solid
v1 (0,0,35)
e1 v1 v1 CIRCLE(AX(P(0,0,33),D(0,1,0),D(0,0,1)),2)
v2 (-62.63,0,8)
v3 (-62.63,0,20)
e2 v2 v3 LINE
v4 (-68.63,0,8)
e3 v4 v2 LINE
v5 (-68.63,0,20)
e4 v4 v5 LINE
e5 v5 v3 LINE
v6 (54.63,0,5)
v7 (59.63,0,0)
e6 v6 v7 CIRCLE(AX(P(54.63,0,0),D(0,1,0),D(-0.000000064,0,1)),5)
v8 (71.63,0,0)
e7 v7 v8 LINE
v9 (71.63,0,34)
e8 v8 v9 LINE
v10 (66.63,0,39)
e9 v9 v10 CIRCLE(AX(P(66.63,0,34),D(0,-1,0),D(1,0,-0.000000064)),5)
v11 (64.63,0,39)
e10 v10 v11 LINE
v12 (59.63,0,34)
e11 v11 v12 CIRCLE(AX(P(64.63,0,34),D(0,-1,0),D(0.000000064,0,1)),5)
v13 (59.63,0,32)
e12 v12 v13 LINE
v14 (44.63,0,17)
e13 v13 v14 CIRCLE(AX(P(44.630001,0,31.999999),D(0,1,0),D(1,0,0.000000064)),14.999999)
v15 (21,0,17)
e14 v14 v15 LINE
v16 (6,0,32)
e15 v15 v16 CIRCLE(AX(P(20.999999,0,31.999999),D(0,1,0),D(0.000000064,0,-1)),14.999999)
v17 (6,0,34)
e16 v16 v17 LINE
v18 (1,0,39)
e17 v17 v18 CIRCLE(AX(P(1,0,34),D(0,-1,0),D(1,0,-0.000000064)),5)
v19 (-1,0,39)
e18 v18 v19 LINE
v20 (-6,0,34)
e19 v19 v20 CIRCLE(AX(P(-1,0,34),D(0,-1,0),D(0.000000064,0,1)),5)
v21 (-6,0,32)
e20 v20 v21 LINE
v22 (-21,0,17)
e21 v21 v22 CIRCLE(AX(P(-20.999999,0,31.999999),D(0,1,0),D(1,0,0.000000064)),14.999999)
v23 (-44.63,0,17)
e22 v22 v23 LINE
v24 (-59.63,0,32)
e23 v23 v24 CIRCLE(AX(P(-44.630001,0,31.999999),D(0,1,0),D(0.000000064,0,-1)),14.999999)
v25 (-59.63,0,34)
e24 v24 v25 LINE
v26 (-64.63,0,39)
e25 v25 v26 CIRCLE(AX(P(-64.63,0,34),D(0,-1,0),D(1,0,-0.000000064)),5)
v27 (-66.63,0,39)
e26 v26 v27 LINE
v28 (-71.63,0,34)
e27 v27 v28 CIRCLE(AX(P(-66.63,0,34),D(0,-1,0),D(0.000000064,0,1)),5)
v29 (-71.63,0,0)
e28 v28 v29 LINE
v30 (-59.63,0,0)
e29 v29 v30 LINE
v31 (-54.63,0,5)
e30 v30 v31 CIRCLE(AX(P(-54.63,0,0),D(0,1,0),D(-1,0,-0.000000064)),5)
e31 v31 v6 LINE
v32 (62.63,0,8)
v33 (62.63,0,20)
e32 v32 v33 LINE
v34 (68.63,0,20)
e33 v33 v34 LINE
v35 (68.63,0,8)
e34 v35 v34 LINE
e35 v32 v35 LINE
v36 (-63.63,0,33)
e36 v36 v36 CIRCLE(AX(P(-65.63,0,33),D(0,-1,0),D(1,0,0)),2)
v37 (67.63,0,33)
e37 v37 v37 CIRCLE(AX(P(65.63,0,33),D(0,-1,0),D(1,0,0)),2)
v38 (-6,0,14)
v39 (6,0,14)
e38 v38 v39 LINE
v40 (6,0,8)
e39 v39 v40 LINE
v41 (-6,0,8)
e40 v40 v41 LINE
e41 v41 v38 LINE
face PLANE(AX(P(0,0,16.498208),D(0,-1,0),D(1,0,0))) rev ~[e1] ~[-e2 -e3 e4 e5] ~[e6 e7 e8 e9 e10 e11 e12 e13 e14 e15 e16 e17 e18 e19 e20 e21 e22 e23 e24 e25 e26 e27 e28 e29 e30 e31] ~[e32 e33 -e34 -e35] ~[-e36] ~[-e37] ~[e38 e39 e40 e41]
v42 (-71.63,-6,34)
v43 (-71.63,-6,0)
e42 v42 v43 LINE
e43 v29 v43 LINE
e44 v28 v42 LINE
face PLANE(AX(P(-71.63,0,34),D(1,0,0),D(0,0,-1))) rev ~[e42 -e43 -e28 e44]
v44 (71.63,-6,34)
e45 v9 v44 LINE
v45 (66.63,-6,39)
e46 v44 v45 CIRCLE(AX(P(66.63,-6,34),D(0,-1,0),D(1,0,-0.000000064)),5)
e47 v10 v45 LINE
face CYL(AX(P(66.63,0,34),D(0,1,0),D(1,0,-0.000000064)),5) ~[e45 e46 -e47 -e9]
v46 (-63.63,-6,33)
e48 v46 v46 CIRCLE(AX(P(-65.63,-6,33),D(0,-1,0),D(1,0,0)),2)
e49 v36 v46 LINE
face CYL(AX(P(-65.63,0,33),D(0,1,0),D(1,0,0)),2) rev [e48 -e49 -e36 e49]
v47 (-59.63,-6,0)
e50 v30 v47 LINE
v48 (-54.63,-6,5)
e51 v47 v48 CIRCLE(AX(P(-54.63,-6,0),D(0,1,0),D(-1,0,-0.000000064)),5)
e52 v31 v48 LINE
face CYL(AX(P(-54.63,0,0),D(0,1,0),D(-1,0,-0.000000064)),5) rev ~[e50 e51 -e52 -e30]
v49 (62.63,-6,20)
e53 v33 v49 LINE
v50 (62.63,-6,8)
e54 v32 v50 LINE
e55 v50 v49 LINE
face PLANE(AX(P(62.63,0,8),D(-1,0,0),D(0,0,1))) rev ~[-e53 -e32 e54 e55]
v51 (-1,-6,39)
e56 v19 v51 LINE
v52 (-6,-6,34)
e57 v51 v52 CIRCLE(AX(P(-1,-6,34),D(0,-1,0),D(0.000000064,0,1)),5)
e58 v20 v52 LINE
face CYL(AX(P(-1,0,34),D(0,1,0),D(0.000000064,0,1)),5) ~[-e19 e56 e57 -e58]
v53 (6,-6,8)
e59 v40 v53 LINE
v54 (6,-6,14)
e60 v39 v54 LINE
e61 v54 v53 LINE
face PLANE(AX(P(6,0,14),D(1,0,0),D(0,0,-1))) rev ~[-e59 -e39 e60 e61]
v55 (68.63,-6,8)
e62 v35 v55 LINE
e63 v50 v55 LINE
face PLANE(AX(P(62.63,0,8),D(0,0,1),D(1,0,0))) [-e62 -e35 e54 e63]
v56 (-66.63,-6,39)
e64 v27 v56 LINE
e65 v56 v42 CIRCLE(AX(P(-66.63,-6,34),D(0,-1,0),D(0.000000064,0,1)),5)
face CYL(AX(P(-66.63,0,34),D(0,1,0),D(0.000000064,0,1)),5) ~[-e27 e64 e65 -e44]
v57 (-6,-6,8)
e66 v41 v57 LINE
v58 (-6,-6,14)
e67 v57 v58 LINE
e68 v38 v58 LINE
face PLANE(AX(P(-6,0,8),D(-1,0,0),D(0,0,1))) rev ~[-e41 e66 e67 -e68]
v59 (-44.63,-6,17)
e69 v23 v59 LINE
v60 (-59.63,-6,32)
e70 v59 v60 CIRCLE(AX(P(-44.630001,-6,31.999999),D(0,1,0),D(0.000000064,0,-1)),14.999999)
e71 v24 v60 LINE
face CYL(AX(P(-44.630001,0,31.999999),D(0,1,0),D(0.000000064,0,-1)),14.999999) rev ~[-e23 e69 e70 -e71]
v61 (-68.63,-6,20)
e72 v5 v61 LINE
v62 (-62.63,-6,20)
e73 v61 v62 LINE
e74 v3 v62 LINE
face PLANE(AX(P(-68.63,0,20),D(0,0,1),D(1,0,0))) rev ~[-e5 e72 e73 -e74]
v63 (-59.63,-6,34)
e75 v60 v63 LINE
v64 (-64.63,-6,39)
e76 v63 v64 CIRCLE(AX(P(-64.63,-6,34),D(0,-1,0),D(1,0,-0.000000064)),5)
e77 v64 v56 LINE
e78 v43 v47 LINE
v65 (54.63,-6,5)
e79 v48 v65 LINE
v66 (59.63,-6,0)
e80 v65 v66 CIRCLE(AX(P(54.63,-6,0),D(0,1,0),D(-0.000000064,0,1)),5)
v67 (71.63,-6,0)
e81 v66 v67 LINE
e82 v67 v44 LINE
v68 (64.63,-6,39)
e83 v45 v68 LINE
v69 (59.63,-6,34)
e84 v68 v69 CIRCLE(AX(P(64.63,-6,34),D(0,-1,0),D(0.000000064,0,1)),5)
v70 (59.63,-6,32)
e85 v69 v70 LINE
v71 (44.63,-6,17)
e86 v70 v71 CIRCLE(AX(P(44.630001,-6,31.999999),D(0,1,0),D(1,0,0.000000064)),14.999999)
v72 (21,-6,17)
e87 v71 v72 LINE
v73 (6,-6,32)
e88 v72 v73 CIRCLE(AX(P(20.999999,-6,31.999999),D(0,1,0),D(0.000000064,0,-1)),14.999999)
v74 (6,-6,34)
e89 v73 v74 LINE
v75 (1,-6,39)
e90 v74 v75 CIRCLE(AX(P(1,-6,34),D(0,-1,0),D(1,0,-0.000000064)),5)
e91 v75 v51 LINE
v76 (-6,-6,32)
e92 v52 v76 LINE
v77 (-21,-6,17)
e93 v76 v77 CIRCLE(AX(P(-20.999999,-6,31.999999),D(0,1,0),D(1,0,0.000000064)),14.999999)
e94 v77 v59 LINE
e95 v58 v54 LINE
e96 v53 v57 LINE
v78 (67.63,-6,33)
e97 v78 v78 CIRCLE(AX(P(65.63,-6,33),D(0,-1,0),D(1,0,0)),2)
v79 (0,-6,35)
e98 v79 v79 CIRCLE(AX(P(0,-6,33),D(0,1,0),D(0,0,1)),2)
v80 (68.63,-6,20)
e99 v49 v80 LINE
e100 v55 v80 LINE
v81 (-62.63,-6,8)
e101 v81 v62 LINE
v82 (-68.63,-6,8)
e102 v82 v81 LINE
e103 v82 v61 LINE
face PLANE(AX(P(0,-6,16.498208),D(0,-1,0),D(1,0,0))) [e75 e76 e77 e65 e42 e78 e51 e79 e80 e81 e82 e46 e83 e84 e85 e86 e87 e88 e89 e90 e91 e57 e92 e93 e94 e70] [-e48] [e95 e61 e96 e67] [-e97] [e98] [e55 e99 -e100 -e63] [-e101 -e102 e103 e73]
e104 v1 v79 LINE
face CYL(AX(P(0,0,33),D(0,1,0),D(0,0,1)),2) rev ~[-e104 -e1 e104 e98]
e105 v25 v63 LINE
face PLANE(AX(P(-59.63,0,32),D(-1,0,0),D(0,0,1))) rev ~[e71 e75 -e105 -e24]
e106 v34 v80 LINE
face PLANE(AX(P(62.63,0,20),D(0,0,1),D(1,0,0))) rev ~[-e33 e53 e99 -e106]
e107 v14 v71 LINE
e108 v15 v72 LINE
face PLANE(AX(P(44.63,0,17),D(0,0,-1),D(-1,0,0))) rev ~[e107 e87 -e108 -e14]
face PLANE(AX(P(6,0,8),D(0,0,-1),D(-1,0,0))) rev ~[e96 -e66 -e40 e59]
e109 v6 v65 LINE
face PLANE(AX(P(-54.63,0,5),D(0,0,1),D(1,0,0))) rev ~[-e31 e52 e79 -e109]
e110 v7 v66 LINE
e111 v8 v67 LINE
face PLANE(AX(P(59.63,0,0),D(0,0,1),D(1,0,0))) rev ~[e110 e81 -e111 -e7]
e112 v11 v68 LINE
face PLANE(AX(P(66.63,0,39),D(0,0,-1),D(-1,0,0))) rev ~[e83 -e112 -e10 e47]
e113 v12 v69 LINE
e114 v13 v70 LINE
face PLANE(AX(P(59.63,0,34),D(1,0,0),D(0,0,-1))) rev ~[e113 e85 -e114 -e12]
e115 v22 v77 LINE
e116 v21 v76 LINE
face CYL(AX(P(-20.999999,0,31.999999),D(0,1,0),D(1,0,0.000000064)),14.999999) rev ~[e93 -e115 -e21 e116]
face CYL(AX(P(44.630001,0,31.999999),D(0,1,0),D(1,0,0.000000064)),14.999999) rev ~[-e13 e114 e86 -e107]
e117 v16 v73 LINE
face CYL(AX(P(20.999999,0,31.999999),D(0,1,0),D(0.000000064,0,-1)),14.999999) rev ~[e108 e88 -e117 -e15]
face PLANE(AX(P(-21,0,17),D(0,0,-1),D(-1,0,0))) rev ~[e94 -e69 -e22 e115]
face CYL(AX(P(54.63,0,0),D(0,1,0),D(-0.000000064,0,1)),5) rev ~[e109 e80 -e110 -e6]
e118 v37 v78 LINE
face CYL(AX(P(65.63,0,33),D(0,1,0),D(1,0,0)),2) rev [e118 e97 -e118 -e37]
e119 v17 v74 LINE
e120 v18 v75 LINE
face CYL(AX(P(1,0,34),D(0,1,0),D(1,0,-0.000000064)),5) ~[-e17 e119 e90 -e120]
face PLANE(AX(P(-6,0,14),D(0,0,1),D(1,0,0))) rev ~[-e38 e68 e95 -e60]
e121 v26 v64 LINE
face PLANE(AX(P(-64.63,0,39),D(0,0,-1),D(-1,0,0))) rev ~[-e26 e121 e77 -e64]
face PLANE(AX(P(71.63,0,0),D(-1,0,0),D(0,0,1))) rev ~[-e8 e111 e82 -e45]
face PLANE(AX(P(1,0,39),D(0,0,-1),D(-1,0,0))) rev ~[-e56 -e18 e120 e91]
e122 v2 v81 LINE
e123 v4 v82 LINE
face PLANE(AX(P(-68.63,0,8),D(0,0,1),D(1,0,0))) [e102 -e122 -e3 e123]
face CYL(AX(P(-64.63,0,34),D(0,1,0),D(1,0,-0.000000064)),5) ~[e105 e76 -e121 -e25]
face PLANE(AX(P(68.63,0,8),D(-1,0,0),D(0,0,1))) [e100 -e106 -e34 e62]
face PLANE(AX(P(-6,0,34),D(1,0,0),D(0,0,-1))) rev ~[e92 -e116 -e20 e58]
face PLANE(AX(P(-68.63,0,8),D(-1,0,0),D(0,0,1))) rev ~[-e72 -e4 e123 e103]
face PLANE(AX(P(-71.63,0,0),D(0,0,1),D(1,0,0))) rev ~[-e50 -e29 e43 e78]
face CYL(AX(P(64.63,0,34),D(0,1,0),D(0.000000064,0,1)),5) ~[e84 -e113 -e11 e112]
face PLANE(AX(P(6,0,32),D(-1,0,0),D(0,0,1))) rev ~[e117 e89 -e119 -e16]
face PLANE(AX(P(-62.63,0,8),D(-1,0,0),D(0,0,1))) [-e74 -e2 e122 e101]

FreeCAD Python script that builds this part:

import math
import FreeCAD as App
import Part
import Sketcher


def add_polygon(sketch, points):
    """Adds a closed chain of lines whose ends are joined by coincident constraints."""
    first, n = sketch.GeometryCount, len(points)
    for a, b in zip(points, points[1:] + points[:1]):
        sketch.addGeometry(Part.LineSegment(App.Vector(*a, 0), App.Vector(*b, 0)), False)
    for i in range(n):
        sketch.addConstraint(Sketcher.Constraint("Coincident", first + i, 2, first + (i + 1) % n, 1))

doc = App.newDocument("Part")
body = doc.addObject("PartDesign::Body", "Body")

sketch1 = body.newObject("Sketcher::SketchObject", "Sketch")
sketch1.AttachmentSupport = (doc.getObject("XZ_Plane"), [""])
sketch1.MapMode = "FlatFace"
sketch1.addGeometry(Part.LineSegment(App.Vector(1, 39, 0), App.Vector(-1, 39, 0)), False)
sketch1.addGeometry(Part.ArcOfCircle(Part.Circle(App.Vector(-1, 34, 0), App.Vector(0, 0, 1), 5), math.radians(90), math.radians(180)), False)
sketch1.addGeometry(Part.LineSegment(App.Vector(-6, 34, 0), App.Vector(-6, 32, 0)), False)
sketch1.addGeometry(Part.ArcOfCircle(Part.Circle(App.Vector(-21, 32, 0), App.Vector(0, 0, 1), 15), math.radians(-90), math.radians(0)), False)
sketch1.addGeometry(Part.LineSegment(App.Vector(-21, 17, 0), App.Vector(-44.6, 17, 0)), False)
sketch1.addGeometry(Part.ArcOfCircle(Part.Circle(App.Vector(-44.6, 32, 0), App.Vector(0, 0, 1), 15), math.radians(180), math.radians(270)), False)
sketch1.addGeometry(Part.LineSegment(App.Vector(-59.6, 32, 0), App.Vector(-59.6, 34, 0)), False)
sketch1.addGeometry(Part.ArcOfCircle(Part.Circle(App.Vector(-64.6, 34, 0), App.Vector(0, 0, 1), 5), math.radians(0), math.radians(90)), False)
sketch1.addGeometry(Part.LineSegment(App.Vector(-64.6, 39, 0), App.Vector(-66.6, 39, 0)), False)
sketch1.addGeometry(Part.ArcOfCircle(Part.Circle(App.Vector(-66.6, 34, 0), App.Vector(0, 0, 1), 5), math.radians(90), math.radians(180)), False)
sketch1.addGeometry(Part.LineSegment(App.Vector(-71.6, 34, 0), App.Vector(-71.6, 0, 0)), False)
sketch1.addGeometry(Part.LineSegment(App.Vector(-71.6, 0, 0), App.Vector(-59.6, 0, 0)), False)
sketch1.addGeometry(Part.ArcOfCircle(Part.Circle(App.Vector(-54.6, 0, 0), App.Vector(0, 0, 1), 5), math.radians(90), math.radians(180)), False)
sketch1.addGeometry(Part.LineSegment(App.Vector(-54.6, 5, 0), App.Vector(54.6, 5, 0)), False)
sketch1.addGeometry(Part.ArcOfCircle(Part.Circle(App.Vector(54.6, 0, 0), App.Vector(0, 0, 1), 5), math.radians(0), math.radians(90)), False)
sketch1.addGeometry(Part.LineSegment(App.Vector(59.6, 0, 0), App.Vector(71.6, 0, 0)), False)
sketch1.addGeometry(Part.LineSegment(App.Vector(71.6, 0, 0), App.Vector(71.6, 34, 0)), False)
sketch1.addGeometry(Part.ArcOfCircle(Part.Circle(App.Vector(66.6, 34, 0), App.Vector(0, 0, 1), 5), math.radians(0), math.radians(90)), False)
sketch1.addGeometry(Part.LineSegment(App.Vector(66.6, 39, 0), App.Vector(64.6, 39, 0)), False)
sketch1.addGeometry(Part.ArcOfCircle(Part.Circle(App.Vector(64.6, 34, 0), App.Vector(0, 0, 1), 5), math.radians(90), math.radians(180)), False)
sketch1.addGeometry(Part.LineSegment(App.Vector(59.6, 34, 0), App.Vector(59.6, 32, 0)), False)
sketch1.addGeometry(Part.ArcOfCircle(Part.Circle(App.Vector(44.6, 32, 0), App.Vector(0, 0, 1), 15), math.radians(-90), math.radians(0)), False)
sketch1.addGeometry(Part.LineSegment(App.Vector(44.6, 17, 0), App.Vector(21, 17, 0)), False)
sketch1.addGeometry(Part.ArcOfCircle(Part.Circle(App.Vector(21, 32, 0), App.Vector(0, 0, 1), 15), math.radians(180), math.radians(270)), False)
sketch1.addGeometry(Part.LineSegment(App.Vector(6, 32, 0), App.Vector(6, 34, 0)), False)
sketch1.addGeometry(Part.ArcOfCircle(Part.Circle(App.Vector(1, 34, 0), App.Vector(0, 0, 1), 5), math.radians(0), math.radians(90)), False)
add_polygon(sketch1, [(-62.6, 8), (-68.6, 8), (-68.6, 20), (-62.6, 20)])
add_polygon(sketch1, [(-6, 8), (-6, 14), (6, 14), (6, 8)])
add_polygon(sketch1, [(68.6, 8), (62.6, 8), (62.6, 20), (68.6, 20)])
sketch1.addGeometry(Part.Circle(App.Vector(-65.6, 33, 0), App.Vector(0, 0, 1), 2), False)
sketch1.addGeometry(Part.Circle(App.Vector(0, 33, 0), App.Vector(0, 0, 1), 2), False)
sketch1.addGeometry(Part.Circle(App.Vector(65.6, 33, 0), App.Vector(0, 0, 1), 2), False)
sketch1.addConstraint([
    Sketcher.Constraint("Tangent", 0, 2, 1, 1),
    Sketcher.Constraint("Tangent", 1, 2, 2, 1),
    Sketcher.Constraint("Tangent", 2, 2, 3, 2),
    Sketcher.Constraint("Tangent", 3, 1, 4, 1),
    Sketcher.Constraint("Tangent", 4, 2, 5, 2),
    Sketcher.Constraint("Tangent", 5, 1, 6, 1),
    Sketcher.Constraint("Tangent", 6, 2, 7, 1),
    Sketcher.Constraint("Tangent", 7, 2, 8, 1),
    Sketcher.Constraint("Tangent", 8, 2, 9, 1),
    Sketcher.Constraint("Tangent", 9, 2, 10, 1),
    Sketcher.Constraint("Coincident", 10, 2, 11, 1),
    Sketcher.Constraint("Coincident", 11, 2, 12, 2),
    Sketcher.Constraint("Tangent", 12, 1, 13, 1),
    Sketcher.Constraint("Tangent", 13, 2, 14, 2),
    Sketcher.Constraint("Coincident", 14, 1, 15, 1),
    Sketcher.Constraint("Coincident", 15, 2, 16, 1),
    Sketcher.Constraint("Tangent", 16, 2, 17, 1),
    Sketcher.Constraint("Tangent", 17, 2, 18, 1),
    Sketcher.Constraint("Tangent", 18, 2, 19, 1),
    Sketcher.Constraint("Tangent", 19, 2, 20, 1),
    Sketcher.Constraint("Tangent", 20, 2, 21, 2),
    Sketcher.Constraint("Tangent", 21, 1, 22, 1),
    Sketcher.Constraint("Tangent", 22, 2, 23, 2),
    Sketcher.Constraint("Tangent", 23, 1, 24, 1),
    Sketcher.Constraint("Tangent", 24, 2, 25, 1),
    Sketcher.Constraint("Tangent", 25, 2, 0, 1),
    Sketcher.Constraint("Horizontal", 0),
    Sketcher.Constraint("Vertical", 2),
    Sketcher.Constraint("Horizontal", 4),
    Sketcher.Constraint("Vertical", 6),
    Sketcher.Constraint("Horizontal", 8),
    Sketcher.Constraint("Vertical", 10),
    Sketcher.Constraint("Horizontal", 11),
    Sketcher.Constraint("Horizontal", 13),
    Sketcher.Constraint("Horizontal", 15),
    Sketcher.Constraint("Vertical", 16),
    Sketcher.Constraint("Horizontal", 18),
    Sketcher.Constraint("Vertical", 20),
    Sketcher.Constraint("Horizontal", 22),
    Sketcher.Constraint("Vertical", 24),
    Sketcher.Constraint("Horizontal", 26),
    Sketcher.Constraint("Vertical", 27),
    Sketcher.Constraint("Horizontal", 28),
    Sketcher.Constraint("Vertical", 29),
    Sketcher.Constraint("Vertical", 30),
    Sketcher.Constraint("Horizontal", 31),
    Sketcher.Constraint("Vertical", 32),
    Sketcher.Constraint("Horizontal", 33),
    Sketcher.Constraint("Horizontal", 34),
    Sketcher.Constraint("Vertical", 35),
    Sketcher.Constraint("Horizontal", 36),
    Sketcher.Constraint("Vertical", 37),
    Sketcher.Constraint("Equal", 3, 5),
    Sketcher.Constraint("Equal", 1, 7),
    Sketcher.Constraint("Equal", 7, 9),
    Sketcher.Constraint("Equal", 9, 12),
    Sketcher.Constraint("Equal", 12, 14),
    Sketcher.Constraint("Equal", 14, 17),
    Sketcher.Constraint("Equal", 17, 19),
    Sketcher.Constraint("Equal", 5, 21),
    Sketcher.Constraint("Equal", 21, 23),
    Sketcher.Constraint("Equal", 19, 25),
    Sketcher.Constraint("Equal", 38, 39),
    Sketcher.Constraint("Equal", 39, 40),
    Sketcher.Constraint("Symmetric", 12, 3, 14, 3, -1, 1),
    Sketcher.Constraint("Symmetric", 10, 2, 15, 2, -1, 1),
    Sketcher.Constraint("Symmetric", 7, 3, 19, 3, -2),
    Sketcher.Constraint("Symmetric", 3, 3, 23, 3, -2),
    Sketcher.Constraint("Symmetric", 38, 3, 40, 3, -2),
    Sketcher.Constraint("Symmetric", 29, 2, 34, 2, -2),
    Sketcher.Constraint("Symmetric", 27, 2, 36, 2, -2),
    Sketcher.Constraint("PointOnObject", 39, 3, -2),
    Sketcher.Constraint("PointOnObject", 10, 2, -1),
    Sketcher.Constraint("Horizontal", 1, 3, 7, 3),
    Sketcher.Constraint("Horizontal", 38, 3, 39, 3),
    Sketcher.Constraint("Horizontal", 29, 2, 32, 2),
    Sketcher.Constraint("Vertical", 6, 2, 11, 2),
    Sketcher.Constraint("Vertical", 2, 2, 30, 2),
    Sketcher.Constraint("Vertical", 24, 2, 31, 2),
    Sketcher.Constraint("Equal", 0, 8),
    Sketcher.Constraint("Equal", 18, 2),
    Sketcher.Constraint("Equal", 33, 27),
    Sketcher.Constraint("Equal", 36, 30),
    Sketcher.Constraint("Diameter", 38, 4.0),
    Sketcher.Constraint("Radius", 1, 5.0),
    Sketcher.Constraint("Radius", 3, 14.999999),
    Sketcher.Constraint("DistanceX", 0, 2, 0, 1, 2.0),
    Sketcher.Constraint("DistanceX", 26, 2, 26, 1, 6.0),
    Sketcher.Constraint("DistanceY", 10, 2, 10, 1, 34.0),
    Sketcher.Constraint("DistanceY", -1, 1, 38, 3, 33.0),
    Sketcher.Constraint("DistanceY", -1, 1, 26, 2, 8.0),
    Sketcher.Constraint("DistanceX", 38, 3, 7, 3, 1.0),
    Sketcher.Constraint("DistanceX", 10, 2, 26, 2, 3.0),
    Sketcher.Constraint("DistanceX", 4, 2, 4, 1, 23.63),
])
pad1 = body.newObject("PartDesign::Pad", "Pad")
pad1.Profile = sketch1
pad1.Length = 6

doc.recompute()
